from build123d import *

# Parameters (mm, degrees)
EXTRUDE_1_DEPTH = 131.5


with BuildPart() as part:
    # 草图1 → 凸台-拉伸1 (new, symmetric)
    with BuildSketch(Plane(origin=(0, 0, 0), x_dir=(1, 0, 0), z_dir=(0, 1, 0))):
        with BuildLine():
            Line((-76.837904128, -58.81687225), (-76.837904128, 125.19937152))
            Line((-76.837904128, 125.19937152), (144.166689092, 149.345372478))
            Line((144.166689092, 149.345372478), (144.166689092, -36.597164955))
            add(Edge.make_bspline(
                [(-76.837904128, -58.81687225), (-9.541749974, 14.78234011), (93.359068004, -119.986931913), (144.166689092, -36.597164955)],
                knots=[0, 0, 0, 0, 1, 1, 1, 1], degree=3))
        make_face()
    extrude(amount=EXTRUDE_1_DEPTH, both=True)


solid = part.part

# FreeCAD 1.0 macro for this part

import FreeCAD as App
import Part
import Sketcher

V = App.Vector

doc = App.newDocument("Part")
body = doc.addObject("PartDesign::Body", "Body")

# Sketch on XZ plane
sketch1 = body.newObject("Sketcher::SketchObject", "Sketch")
sketch1.AttachmentSupport = (doc.getObject("XZ_Plane"), [""])
sketch1.MapMode = "FlatFace"
sketch1.addGeometry([
    Part.LineSegment(V(-76.837904, -125.199372, 0), V(-76.837904, 58.816872, 0)),
    Part.BSplineCurve([V(-76.837904, 58.816872, 0), V(-9.54175, -14.78234, 0), V(93.359068, 119.986932, 0), V(144.166689, 36.597165, 0)], [4, 4], [0, 1], False, 3, [1, 1, 1, 1], False),
    Part.LineSegment(V(144.166689, 36.597165, 0), V(144.166689, -149.345372, 0)),
    Part.LineSegment(V(144.166689, -149.345372, 0), V(-76.837904, -125.199372, 0)),
], False)
sketch1.addConstraint([
    Sketcher.Constraint("Block", 1),
    Sketcher.Constraint("Coincident", 0, 2, 1, 1),
    Sketcher.Constraint("Coincident", 1, 2, 2, 1),
    Sketcher.Constraint("Coincident", 2, 2, 3, 1),
    Sketcher.Constraint("Coincident", 3, 2, 0, 1),
    Sketcher.Constraint("Vertical", 0),
    Sketcher.Constraint("Vertical", 2),
    Sketcher.Constraint("DistanceY", 2, 2, 3, 2, 24.146001),
    Sketcher.Constraint("DistanceY", 0, 1, 0, 2, 184.016244),
])
pad1 = body.newObject("PartDesign::Pad", "Pad")
pad1.Profile = sketch1
pad1.Length = 263
pad1.Midplane = True

doc.recompute()
